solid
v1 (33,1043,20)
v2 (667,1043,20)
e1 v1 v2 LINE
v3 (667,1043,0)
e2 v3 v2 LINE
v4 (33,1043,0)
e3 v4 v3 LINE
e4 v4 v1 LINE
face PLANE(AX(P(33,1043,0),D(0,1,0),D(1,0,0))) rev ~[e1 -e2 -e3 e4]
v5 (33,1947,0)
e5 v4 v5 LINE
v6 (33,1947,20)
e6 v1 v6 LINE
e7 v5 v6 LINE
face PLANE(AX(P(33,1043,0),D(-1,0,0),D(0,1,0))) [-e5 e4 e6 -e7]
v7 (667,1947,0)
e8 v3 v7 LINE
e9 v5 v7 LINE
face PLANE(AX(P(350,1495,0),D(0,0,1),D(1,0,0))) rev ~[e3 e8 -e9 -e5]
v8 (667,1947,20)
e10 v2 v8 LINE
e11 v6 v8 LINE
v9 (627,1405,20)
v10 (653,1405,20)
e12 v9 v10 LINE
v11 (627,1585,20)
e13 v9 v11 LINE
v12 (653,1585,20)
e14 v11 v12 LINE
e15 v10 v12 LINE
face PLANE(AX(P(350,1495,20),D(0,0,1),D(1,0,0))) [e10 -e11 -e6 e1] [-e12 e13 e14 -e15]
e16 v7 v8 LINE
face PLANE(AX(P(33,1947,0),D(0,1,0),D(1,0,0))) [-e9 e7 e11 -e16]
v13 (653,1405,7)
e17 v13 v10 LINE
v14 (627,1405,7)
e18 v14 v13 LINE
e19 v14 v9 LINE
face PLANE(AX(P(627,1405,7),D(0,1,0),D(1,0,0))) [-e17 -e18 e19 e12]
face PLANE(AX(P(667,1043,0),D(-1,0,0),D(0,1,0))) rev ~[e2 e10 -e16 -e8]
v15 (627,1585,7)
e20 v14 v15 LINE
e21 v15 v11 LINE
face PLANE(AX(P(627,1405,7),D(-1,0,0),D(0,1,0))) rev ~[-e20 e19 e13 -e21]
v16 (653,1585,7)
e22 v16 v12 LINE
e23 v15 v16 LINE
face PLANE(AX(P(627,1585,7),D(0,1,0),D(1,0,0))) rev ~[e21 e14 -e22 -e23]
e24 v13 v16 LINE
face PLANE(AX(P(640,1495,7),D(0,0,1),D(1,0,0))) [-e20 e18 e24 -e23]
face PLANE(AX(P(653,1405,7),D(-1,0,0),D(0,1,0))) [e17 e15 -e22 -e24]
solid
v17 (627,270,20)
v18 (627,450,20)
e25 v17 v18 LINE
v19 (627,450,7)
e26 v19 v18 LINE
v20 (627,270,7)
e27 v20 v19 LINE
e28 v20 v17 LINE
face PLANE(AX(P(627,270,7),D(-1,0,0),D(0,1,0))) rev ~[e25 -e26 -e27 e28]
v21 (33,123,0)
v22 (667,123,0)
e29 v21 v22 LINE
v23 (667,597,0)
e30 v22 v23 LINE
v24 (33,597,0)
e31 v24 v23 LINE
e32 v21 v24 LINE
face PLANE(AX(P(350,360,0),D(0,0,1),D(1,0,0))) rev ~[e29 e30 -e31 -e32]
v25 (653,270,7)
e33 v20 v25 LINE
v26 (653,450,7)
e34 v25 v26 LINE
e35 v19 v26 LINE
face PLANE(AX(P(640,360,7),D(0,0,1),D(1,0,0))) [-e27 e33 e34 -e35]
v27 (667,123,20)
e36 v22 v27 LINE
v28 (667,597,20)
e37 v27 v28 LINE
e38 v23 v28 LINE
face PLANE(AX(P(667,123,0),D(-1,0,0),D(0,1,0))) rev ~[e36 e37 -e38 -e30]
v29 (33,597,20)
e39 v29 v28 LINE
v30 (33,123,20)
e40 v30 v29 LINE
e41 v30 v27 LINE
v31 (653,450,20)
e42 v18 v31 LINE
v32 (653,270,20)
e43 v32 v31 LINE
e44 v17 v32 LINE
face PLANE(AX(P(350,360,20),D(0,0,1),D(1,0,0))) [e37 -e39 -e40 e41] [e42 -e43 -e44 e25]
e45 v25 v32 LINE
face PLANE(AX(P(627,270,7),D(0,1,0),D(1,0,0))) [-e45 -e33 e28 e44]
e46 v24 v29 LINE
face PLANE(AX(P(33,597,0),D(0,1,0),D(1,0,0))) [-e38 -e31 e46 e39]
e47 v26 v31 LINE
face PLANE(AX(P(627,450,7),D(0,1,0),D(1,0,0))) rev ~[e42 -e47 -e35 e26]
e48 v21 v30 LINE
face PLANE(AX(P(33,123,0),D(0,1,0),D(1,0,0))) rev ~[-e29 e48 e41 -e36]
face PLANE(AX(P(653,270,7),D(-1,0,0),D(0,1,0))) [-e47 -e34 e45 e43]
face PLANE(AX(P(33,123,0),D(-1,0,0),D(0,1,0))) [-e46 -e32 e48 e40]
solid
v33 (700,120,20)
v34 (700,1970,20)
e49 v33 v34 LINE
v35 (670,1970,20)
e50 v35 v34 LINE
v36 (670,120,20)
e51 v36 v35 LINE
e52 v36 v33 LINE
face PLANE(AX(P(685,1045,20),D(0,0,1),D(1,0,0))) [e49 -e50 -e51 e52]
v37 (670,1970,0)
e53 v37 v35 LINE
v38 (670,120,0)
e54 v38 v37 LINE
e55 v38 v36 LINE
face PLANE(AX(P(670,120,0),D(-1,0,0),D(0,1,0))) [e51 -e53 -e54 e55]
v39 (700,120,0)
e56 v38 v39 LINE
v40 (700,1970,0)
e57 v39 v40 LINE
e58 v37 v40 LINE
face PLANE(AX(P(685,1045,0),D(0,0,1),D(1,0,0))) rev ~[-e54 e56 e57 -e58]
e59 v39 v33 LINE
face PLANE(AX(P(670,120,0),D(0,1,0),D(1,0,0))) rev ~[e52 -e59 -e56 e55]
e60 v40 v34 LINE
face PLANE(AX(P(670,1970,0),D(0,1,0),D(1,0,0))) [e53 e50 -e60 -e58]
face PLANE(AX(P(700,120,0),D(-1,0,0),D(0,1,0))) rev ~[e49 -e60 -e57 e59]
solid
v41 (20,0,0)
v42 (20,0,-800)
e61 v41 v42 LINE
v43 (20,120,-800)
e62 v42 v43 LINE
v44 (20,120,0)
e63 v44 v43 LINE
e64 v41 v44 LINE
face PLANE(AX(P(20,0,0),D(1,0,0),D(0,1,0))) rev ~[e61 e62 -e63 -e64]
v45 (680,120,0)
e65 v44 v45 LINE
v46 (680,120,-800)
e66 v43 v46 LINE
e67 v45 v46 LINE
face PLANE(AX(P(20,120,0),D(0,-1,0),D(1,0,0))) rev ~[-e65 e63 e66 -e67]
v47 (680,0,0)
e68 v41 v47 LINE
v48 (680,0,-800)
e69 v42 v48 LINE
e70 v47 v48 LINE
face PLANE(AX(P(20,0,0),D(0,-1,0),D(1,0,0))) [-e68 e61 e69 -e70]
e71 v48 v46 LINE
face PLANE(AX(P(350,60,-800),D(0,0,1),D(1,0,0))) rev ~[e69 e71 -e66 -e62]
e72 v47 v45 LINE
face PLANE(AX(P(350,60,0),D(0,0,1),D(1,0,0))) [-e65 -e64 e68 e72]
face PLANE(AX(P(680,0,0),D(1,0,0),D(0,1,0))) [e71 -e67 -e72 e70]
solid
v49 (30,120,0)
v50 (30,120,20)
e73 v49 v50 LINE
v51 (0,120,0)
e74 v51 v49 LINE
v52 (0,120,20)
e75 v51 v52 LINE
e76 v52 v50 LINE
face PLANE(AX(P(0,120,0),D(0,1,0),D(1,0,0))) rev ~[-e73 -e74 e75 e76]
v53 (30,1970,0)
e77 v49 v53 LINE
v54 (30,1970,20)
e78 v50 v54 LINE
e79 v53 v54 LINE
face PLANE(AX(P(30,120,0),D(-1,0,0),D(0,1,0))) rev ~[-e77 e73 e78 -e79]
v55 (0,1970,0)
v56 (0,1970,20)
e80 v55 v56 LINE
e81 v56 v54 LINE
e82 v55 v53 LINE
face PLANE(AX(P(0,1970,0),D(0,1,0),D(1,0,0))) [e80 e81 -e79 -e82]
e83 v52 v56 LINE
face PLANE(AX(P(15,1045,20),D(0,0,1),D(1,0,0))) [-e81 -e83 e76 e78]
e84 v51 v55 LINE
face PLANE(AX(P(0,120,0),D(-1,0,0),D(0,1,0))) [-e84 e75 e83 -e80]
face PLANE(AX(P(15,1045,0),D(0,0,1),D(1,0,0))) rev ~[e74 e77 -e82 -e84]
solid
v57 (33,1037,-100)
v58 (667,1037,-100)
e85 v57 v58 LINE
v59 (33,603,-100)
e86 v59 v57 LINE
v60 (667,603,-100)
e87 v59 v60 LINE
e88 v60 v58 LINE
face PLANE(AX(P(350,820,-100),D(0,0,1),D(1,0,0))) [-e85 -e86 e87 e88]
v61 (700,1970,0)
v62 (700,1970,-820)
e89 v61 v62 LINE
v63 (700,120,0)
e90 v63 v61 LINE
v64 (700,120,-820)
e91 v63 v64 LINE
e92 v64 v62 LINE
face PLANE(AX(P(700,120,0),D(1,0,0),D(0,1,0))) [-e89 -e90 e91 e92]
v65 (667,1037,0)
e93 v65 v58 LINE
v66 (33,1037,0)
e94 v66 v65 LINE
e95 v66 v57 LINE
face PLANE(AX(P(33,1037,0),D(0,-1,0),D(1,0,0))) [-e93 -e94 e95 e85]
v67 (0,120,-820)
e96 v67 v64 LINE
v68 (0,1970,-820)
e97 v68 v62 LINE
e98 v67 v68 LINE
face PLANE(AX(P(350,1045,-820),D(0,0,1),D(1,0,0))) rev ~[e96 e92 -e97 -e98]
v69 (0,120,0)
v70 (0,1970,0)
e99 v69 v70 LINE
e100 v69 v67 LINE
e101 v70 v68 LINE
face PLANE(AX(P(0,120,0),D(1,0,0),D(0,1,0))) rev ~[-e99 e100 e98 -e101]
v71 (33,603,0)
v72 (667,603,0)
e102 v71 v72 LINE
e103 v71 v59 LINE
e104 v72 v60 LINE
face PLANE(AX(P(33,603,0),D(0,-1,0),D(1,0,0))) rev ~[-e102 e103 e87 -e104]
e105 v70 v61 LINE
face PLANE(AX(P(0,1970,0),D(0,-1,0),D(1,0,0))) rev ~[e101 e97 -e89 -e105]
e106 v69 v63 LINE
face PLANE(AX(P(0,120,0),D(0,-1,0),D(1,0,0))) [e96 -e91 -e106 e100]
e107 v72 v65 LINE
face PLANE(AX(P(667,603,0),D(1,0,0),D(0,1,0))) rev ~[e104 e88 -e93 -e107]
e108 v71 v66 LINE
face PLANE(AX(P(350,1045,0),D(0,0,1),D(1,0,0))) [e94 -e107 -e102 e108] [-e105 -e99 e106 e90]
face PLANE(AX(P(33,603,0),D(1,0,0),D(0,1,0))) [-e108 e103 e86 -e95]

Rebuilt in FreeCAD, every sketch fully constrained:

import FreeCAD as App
import Part
import Sketcher
from FreeCAD import Vector

doc = App.newDocument("Part")
body = doc.addObject("PartDesign::Body", "Body")

# Sketch on XY plane
sketch1 = body.newObject("Sketcher::SketchObject", "Sketch")
sketch1.AttachmentSupport = (doc.getObject("XY_Plane"), [""])
sketch1.MapMode = "FlatFace"
sketch1.addGeometry(Part.LineSegment(Vector(0, 1970, 0), Vector(0, 120, 0)), False)
sketch1.addGeometry(Part.LineSegment(Vector(0, 120, 0), Vector(700, 120, 0)), False)
sketch1.addGeometry(Part.LineSegment(Vector(700, 120, 0), Vector(700, 1970, 0)), False)
sketch1.addGeometry(Part.LineSegment(Vector(700, 1970, 0), Vector(0, 1970, 0)), False)
sketch1.addConstraint(Sketcher.Constraint("Coincident", 0, 2, 1, 1))
sketch1.addConstraint(Sketcher.Constraint("Coincident", 1, 2, 2, 1))
sketch1.addConstraint(Sketcher.Constraint("Coincident", 2, 2, 3, 1))
sketch1.addConstraint(Sketcher.Constraint("Coincident", 3, 2, 0, 1))
sketch1.addConstraint(Sketcher.Constraint("Vertical", 0))
sketch1.addConstraint(Sketcher.Constraint("Horizontal", 1))
sketch1.addConstraint(Sketcher.Constraint("Vertical", 2))
sketch1.addConstraint(Sketcher.Constraint("Horizontal", 3))
sketch1.addConstraint(Sketcher.Constraint("PointOnObject", 0, 2, -2))
sketch1.addConstraint(Sketcher.Constraint("DistanceX", 1, 1, 1, 2, 700.0))
sketch1.addConstraint(Sketcher.Constraint("DistanceY", 0, 2, 0, 1, 1850.0))
sketch1.addConstraint(Sketcher.Constraint("DistanceY", -1, 1, 0, 2, 120.0))
pad1 = body.newObject("PartDesign::Pad", "Pad")
pad1.Profile = sketch1
pad1.Length = 820
pad1.Reversed = True

# Sketch on XY plane
sketch2 = body.newObject("Sketcher::SketchObject", "Sketch001")
sketch2.AttachmentSupport = (doc.getObject("XY_Plane"), [""])
sketch2.MapMode = "FlatFace"
sketch2.addGeometry(Part.LineSegment(Vector(33, 1037, 0), Vector(33, 603, 0)), False)
sketch2.addGeometry(Part.LineSegment(Vector(33, 603, 0), Vector(667, 603, 0)), False)
sketch2.addGeometry(Part.LineSegment(Vector(667, 603, 0), Vector(667, 1037, 0)), False)
sketch2.addGeometry(Part.LineSegment(Vector(667, 1037, 0), Vector(33, 1037, 0)), False)
sketch2.addConstraint(Sketcher.Constraint("Coincident", 0, 2, 1, 1))
sketch2.addConstraint(Sketcher.Constraint("Coincident", 1, 2, 2, 1))
sketch2.addConstraint(Sketcher.Constraint("Coincident", 2, 2, 3, 1))
sketch2.addConstraint(Sketcher.Constraint("Coincident", 3, 2, 0, 1))
sketch2.addConstraint(Sketcher.Constraint("Vertical", 0))
sketch2.addConstraint(Sketcher.Constraint("Horizontal", 1))
sketch2.addConstraint(Sketcher.Constraint("Vertical", 2))
sketch2.addConstraint(Sketcher.Constraint("Horizontal", 3))
sketch2.addConstraint(Sketcher.Constraint("DistanceX", 1, 1, 1, 2, 634.0))
sketch2.addConstraint(Sketcher.Constraint("DistanceY", 0, 2, 0, 1, 434.0))
sketch2.addConstraint(Sketcher.Constraint("DistanceX", -1, 1, 0, 2, 33.0))
sketch2.addConstraint(Sketcher.Constraint("DistanceY", -1, 1, 0, 2, 603.0))
pocket1 = body.newObject("PartDesign::Pocket", "Pocket")
pocket1.Profile = sketch2
pocket1.Length = 100
body2 = doc.addObject("PartDesign::Body", "Body001")

# Sketch on XY plane
sketch3 = body2.newObject("Sketcher::SketchObject", "Sketch002")
sketch3.AttachmentSupport = (doc.getObject("XY_Plane001"), [""])
sketch3.MapMode = "FlatFace"
sketch3.addGeometry(Part.LineSegment(Vector(20, 120, 0), Vector(20, 0, 0)), False)
sketch3.addGeometry(Part.LineSegment(Vector(20, 0, 0), Vector(680, 0, 0)), False)
sketch3.addGeometry(Part.LineSegment(Vector(680, 0, 0), Vector(680, 120, 0)), False)
sketch3.addGeometry(Part.LineSegment(Vector(680, 120, 0), Vector(20, 120, 0)), False)
sketch3.addConstraint(Sketcher.Constraint("Coincident", 0, 2, 1, 1))
sketch3.addConstraint(Sketcher.Constraint("Coincident", 1, 2, 2, 1))
sketch3.addConstraint(Sketcher.Constraint("Coincident", 2, 2, 3, 1))
sketch3.addConstraint(Sketcher.Constraint("Coincident", 3, 2, 0, 1))
sketch3.addConstraint(Sketcher.Constraint("Vertical", 0))
sketch3.addConstraint(Sketcher.Constraint("Horizontal", 1))
sketch3.addConstraint(Sketcher.Constraint("Vertical", 2))
sketch3.addConstraint(Sketcher.Constraint("Horizontal", 3))
sketch3.addConstraint(Sketcher.Constraint("PointOnObject", 0, 2, -1))
sketch3.addConstraint(Sketcher.Constraint("DistanceX", 1, 1, 1, 2, 660.0))
sketch3.addConstraint(Sketcher.Constraint("DistanceY", 0, 2, 0, 1, 120.0))
sketch3.addConstraint(Sketcher.Constraint("DistanceX", -1, 1, 0, 2, 20.0))
pad2 = body2.newObject("PartDesign::Pad", "Pad001")
pad2.Profile = sketch3
pad2.Length = 800
pad2.Reversed = True
body3 = doc.addObject("PartDesign::Body", "Body002")

# Sketch on XY plane
sketch4 = body3.newObject("Sketcher::SketchObject", "Sketch003")
sketch4.AttachmentSupport = (doc.getObject("XY_Plane002"), [""])
sketch4.MapMode = "FlatFace"
sketch4.addGeometry(Part.LineSegment(Vector(0, 1970, 0), Vector(0, 120, 0)), False)
sketch4.addGeometry(Part.LineSegment(Vector(0, 120, 0), Vector(30, 120, 0)), False)
sketch4.addGeometry(Part.LineSegment(Vector(30, 120, 0), Vector(30, 1970, 0)), False)
sketch4.addGeometry(Part.LineSegment(Vector(30, 1970, 0), Vector(0, 1970, 0)), False)
sketch4.addConstraint(Sketcher.Constraint("Coincident", 0, 2, 1, 1))
sketch4.addConstraint(Sketcher.Constraint("Coincident", 1, 2, 2, 1))
sketch4.addConstraint(Sketcher.Constraint("Coincident", 2, 2, 3, 1))
sketch4.addConstraint(Sketcher.Constraint("Coincident", 3, 2, 0, 1))
sketch4.addConstraint(Sketcher.Constraint("Vertical", 0))
sketch4.addConstraint(Sketcher.Constraint("Horizontal", 1))
sketch4.addConstraint(Sketcher.Constraint("Vertical", 2))
sketch4.addConstraint(Sketcher.Constraint("Horizontal", 3))
sketch4.addConstraint(Sketcher.Constraint("PointOnObject", 0, 2, -2))
sketch4.addConstraint(Sketcher.Constraint("DistanceX", 1, 1, 1, 2, 30.0))
sketch4.addConstraint(Sketcher.Constraint("DistanceY", 0, 2, 0, 1, 1850.0))
sketch4.addConstraint(Sketcher.Constraint("DistanceY", -1, 1, 0, 2, 120.0))
pad3 = body3.newObject("PartDesign::Pad", "Pad002")
pad3.Profile = sketch4
pad3.Length = 20
body4 = doc.addObject("PartDesign::Body", "Body003")

# Sketch on XY plane
sketch5 = body4.newObject("Sketcher::SketchObject", "Sketch004")
sketch5.AttachmentSupport = (doc.getObject("XY_Plane003"), [""])
sketch5.MapMode = "FlatFace"
sketch5.addGeometry(Part.LineSegment(Vector(670, 1970, 0), Vector(670, 120, 0)), False)
sketch5.addGeometry(Part.LineSegment(Vector(670, 120, 0), Vector(700, 120, 0)), False)
sketch5.addGeometry(Part.LineSegment(Vector(700, 120, 0), Vector(700, 1970, 0)), False)
sketch5.addGeometry(Part.LineSegment(Vector(700, 1970, 0), Vector(670, 1970, 0)), False)
sketch5.addConstraint(Sketcher.Constraint("Coincident", 0, 2, 1, 1))
sketch5.addConstraint(Sketcher.Constraint("Coincident", 1, 2, 2, 1))
sketch5.addConstraint(Sketcher.Constraint("Coincident", 2, 2, 3, 1))
sketch5.addConstraint(Sketcher.Constraint("Coincident", 3, 2, 0, 1))
sketch5.addConstraint(Sketcher.Constraint("Vertical", 0))
sketch5.addConstraint(Sketcher.Constraint("Horizontal", 1))
sketch5.addConstraint(Sketcher.Constraint("Vertical", 2))
sketch5.addConstraint(Sketcher.Constraint("Horizontal", 3))
sketch5.addConstraint(Sketcher.Constraint("DistanceX", 1, 1, 1, 2, 30.0))
sketch5.addConstraint(Sketcher.Constraint("DistanceY", 0, 2, 0, 1, 1850.0))
sketch5.addConstraint(Sketcher.Constraint("DistanceX", -1, 1, 0, 2, 670.0))
sketch5.addConstraint(Sketcher.Constraint("DistanceY", -1, 1, 0, 2, 120.0))
pad4 = body4.newObject("PartDesign::Pad", "Pad003")
pad4.Profile = sketch5
pad4.Length = 20
body5 = doc.addObject("PartDesign::Body", "Body004")

# Sketch on XY plane
sketch6 = body5.newObject("Sketcher::SketchObject", "Sketch005")
sketch6.AttachmentSupport = (doc.getObject("XY_Plane004"), [""])
sketch6.MapMode = "FlatFace"
sketch6.addGeometry(Part.LineSegment(Vector(33, 1947, 0), Vector(33, 1043, 0)), False)
sketch6.addGeometry(Part.LineSegment(Vector(33, 1043, 0), Vector(667, 1043, 0)), False)
sketch6.addGeometry(Part.LineSegment(Vector(667, 1043, 0), Vector(667, 1947, 0)), False)
sketch6.addGeometry(Part.LineSegment(Vector(667, 1947, 0), Vector(33, 1947, 0)), False)
sketch6.addConstraint(Sketcher.Constraint("Coincident", 0, 2, 1, 1))
sketch6.addConstraint(Sketcher.Constraint("Coincident", 1, 2, 2, 1))
sketch6.addConstraint(Sketcher.Constraint("Coincident", 2, 2, 3, 1))
sketch6.addConstraint(Sketcher.Constraint("Coincident", 3, 2, 0, 1))
sketch6.addConstraint(Sketcher.Constraint("Vertical", 0))
sketch6.addConstraint(Sketcher.Constraint("Horizontal", 1))
sketch6.addConstraint(Sketcher.Constraint("Vertical", 2))
sketch6.addConstraint(Sketcher.Constraint("Horizontal", 3))
sketch6.addConstraint(Sketcher.Constraint("DistanceX", 1, 1, 1, 2, 634.0))
sketch6.addConstraint(Sketcher.Constraint("DistanceY", 0, 2, 0, 1, 904.0))
sketch6.addConstraint(Sketcher.Constraint("DistanceX", -1, 1, 0, 2, 33.0))
sketch6.addConstraint(Sketcher.Constraint("DistanceY", -1, 1, 0, 2, 1043.0))
pad5 = body5.newObject("PartDesign::Pad", "Pad004")
pad5.Profile = sketch6
pad5.Length = 20

# Sketch on XY plane
sketch7 = body5.newObject("Sketcher::SketchObject", "Sketch006")
sketch7.AttachmentSupport = (doc.getObject("XY_Plane004"), [""])
sketch7.MapMode = "FlatFace"
sketch7.AttachmentOffset = App.Placement(Vector(0, 0, 7), App.Rotation())
sketch7.addGeometry(Part.LineSegment(Vector(627, 1585, 0), Vector(627, 1405, 0)), False)
sketch7.addGeometry(Part.LineSegment(Vector(627, 1405, 0), Vector(653, 1405, 0)), False)
sketch7.addGeometry(Part.LineSegment(Vector(653, 1405, 0), Vector(653, 1585, 0)), False)
sketch7.addGeometry(Part.LineSegment(Vector(653, 1585, 0), Vector(627, 1585, 0)), False)
sketch7.addConstraint(Sketcher.Constraint("Coincident", 0, 2, 1, 1))
sketch7.addConstraint(Sketcher.Constraint("Coincident", 1, 2, 2, 1))
sketch7.addConstraint(Sketcher.Constraint("Coincident", 2, 2, 3, 1))
sketch7.addConstraint(Sketcher.Constraint("Coincident", 3, 2, 0, 1))
sketch7.addConstraint(Sketcher.Constraint("Vertical", 0))
sketch7.addConstraint(Sketcher.Constraint("Horizontal", 1))
sketch7.addConstraint(Sketcher.Constraint("Vertical", 2))
sketch7.addConstraint(Sketcher.Constraint("Horizontal", 3))
sketch7.addConstraint(Sketcher.Constraint("DistanceX", 1, 1, 1, 2, 26.0))
sketch7.addConstraint(Sketcher.Constraint("DistanceY", 0, 2, 0, 1, 180.0))
sketch7.addConstraint(Sketcher.Constraint("DistanceX", -1, 1, 0, 2, 627.0))
sketch7.addConstraint(Sketcher.Constraint("DistanceY", -1, 1, 0, 2, 1405.0))
pocket2 = body5.newObject("PartDesign::Pocket", "Pocket001")
pocket2.Profile = sketch7
pocket2.Length = 13
pocket2.Reversed = True
body6 = doc.addObject("PartDesign::Body", "Body005")

# Sketch on XY plane
sketch8 = body6.newObject("Sketcher::SketchObject", "Sketch007")
sketch8.AttachmentSupport = (doc.getObject("XY_Plane005"), [""])
sketch8.MapMode = "FlatFace"
sketch8.addGeometry(Part.LineSegment(Vector(33, 597, 0), Vector(33, 123, 0)), False)
sketch8.addGeometry(Part.LineSegment(Vector(33, 123, 0), Vector(667, 123, 0)), False)
sketch8.addGeometry(Part.LineSegment(Vector(667, 123, 0), Vector(667, 597, 0)), False)
sketch8.addGeometry(Part.LineSegment(Vector(667, 597, 0), Vector(33, 597, 0)), False)
sketch8.addConstraint(Sketcher.Constraint("Coincident", 0, 2, 1, 1))
sketch8.addConstraint(Sketcher.Constraint("Coincident", 1, 2, 2, 1))
sketch8.addConstraint(Sketcher.Constraint("Coincident", 2, 2, 3, 1))
sketch8.addConstraint(Sketcher.Constraint("Coincident", 3, 2, 0, 1))
sketch8.addConstraint(Sketcher.Constraint("Vertical", 0))
sketch8.addConstraint(Sketcher.Constraint("Horizontal", 1))
sketch8.addConstraint(Sketcher.Constraint("Vertical", 2))
sketch8.addConstraint(Sketcher.Constraint("Horizontal", 3))
sketch8.addConstraint(Sketcher.Constraint("DistanceX", 1, 1, 1, 2, 634.0))
sketch8.addConstraint(Sketcher.Constraint("DistanceY", 0, 2, 0, 1, 474.0))
sketch8.addConstraint(Sketcher.Constraint("DistanceX", -1, 1, 0, 2, 33.0))
sketch8.addConstraint(Sketcher.Constraint("DistanceY", -1, 1, 0, 2, 123.0))
pad6 = body6.newObject("PartDesign::Pad", "Pad005")
pad6.Profile = sketch8
pad6.Length = 20

# Sketch on XY plane
sketch9 = body6.newObject("Sketcher::SketchObject", "Sketch008")
sketch9.AttachmentSupport = (doc.getObject("XY_Plane005"), [""])
sketch9.MapMode = "FlatFace"
sketch9.AttachmentOffset = App.Placement(Vector(0, 0, 7), App.Rotation())
sketch9.addGeometry(Part.LineSegment(Vector(627, 450, 0), Vector(627, 270, 0)), False)
sketch9.addGeometry(Part.LineSegment(Vector(627, 270, 0), Vector(653, 270, 0)), False)
sketch9.addGeometry(Part.LineSegment(Vector(653, 270, 0), Vector(653, 450, 0)), False)
sketch9.addGeometry(Part.LineSegment(Vector(653, 450, 0), Vector(627, 450, 0)), False)
sketch9.addConstraint(Sketcher.Constraint("Coincident", 0, 2, 1, 1))
sketch9.addConstraint(Sketcher.Constraint("Coincident", 1, 2, 2, 1))
sketch9.addConstraint(Sketcher.Constraint("Coincident", 2, 2, 3, 1))
sketch9.addConstraint(Sketcher.Constraint("Coincident", 3, 2, 0, 1))
sketch9.addConstraint(Sketcher.Constraint("Vertical", 0))
sketch9.addConstraint(Sketcher.Constraint("Horizontal", 1))
sketch9.addConstraint(Sketcher.Constraint("Vertical", 2))
sketch9.addConstraint(Sketcher.Constraint("Horizontal", 3))
sketch9.addConstraint(Sketcher.Constraint("DistanceX", 1, 1, 1, 2, 26.0))
sketch9.addConstraint(Sketcher.Constraint("DistanceY", 0, 2, 0, 1, 180.0))
sketch9.addConstraint(Sketcher.Constraint("DistanceX", -1, 1, 0, 2, 627.0))
sketch9.addConstraint(Sketcher.Constraint("DistanceY", -1, 1, 0, 2, 270.0))
pocket3 = body6.newObject("PartDesign::Pocket", "Pocket002")
pocket3.Profile = sketch9
pocket3.Length = 13
pocket3.Reversed = True

doc.recompute()
